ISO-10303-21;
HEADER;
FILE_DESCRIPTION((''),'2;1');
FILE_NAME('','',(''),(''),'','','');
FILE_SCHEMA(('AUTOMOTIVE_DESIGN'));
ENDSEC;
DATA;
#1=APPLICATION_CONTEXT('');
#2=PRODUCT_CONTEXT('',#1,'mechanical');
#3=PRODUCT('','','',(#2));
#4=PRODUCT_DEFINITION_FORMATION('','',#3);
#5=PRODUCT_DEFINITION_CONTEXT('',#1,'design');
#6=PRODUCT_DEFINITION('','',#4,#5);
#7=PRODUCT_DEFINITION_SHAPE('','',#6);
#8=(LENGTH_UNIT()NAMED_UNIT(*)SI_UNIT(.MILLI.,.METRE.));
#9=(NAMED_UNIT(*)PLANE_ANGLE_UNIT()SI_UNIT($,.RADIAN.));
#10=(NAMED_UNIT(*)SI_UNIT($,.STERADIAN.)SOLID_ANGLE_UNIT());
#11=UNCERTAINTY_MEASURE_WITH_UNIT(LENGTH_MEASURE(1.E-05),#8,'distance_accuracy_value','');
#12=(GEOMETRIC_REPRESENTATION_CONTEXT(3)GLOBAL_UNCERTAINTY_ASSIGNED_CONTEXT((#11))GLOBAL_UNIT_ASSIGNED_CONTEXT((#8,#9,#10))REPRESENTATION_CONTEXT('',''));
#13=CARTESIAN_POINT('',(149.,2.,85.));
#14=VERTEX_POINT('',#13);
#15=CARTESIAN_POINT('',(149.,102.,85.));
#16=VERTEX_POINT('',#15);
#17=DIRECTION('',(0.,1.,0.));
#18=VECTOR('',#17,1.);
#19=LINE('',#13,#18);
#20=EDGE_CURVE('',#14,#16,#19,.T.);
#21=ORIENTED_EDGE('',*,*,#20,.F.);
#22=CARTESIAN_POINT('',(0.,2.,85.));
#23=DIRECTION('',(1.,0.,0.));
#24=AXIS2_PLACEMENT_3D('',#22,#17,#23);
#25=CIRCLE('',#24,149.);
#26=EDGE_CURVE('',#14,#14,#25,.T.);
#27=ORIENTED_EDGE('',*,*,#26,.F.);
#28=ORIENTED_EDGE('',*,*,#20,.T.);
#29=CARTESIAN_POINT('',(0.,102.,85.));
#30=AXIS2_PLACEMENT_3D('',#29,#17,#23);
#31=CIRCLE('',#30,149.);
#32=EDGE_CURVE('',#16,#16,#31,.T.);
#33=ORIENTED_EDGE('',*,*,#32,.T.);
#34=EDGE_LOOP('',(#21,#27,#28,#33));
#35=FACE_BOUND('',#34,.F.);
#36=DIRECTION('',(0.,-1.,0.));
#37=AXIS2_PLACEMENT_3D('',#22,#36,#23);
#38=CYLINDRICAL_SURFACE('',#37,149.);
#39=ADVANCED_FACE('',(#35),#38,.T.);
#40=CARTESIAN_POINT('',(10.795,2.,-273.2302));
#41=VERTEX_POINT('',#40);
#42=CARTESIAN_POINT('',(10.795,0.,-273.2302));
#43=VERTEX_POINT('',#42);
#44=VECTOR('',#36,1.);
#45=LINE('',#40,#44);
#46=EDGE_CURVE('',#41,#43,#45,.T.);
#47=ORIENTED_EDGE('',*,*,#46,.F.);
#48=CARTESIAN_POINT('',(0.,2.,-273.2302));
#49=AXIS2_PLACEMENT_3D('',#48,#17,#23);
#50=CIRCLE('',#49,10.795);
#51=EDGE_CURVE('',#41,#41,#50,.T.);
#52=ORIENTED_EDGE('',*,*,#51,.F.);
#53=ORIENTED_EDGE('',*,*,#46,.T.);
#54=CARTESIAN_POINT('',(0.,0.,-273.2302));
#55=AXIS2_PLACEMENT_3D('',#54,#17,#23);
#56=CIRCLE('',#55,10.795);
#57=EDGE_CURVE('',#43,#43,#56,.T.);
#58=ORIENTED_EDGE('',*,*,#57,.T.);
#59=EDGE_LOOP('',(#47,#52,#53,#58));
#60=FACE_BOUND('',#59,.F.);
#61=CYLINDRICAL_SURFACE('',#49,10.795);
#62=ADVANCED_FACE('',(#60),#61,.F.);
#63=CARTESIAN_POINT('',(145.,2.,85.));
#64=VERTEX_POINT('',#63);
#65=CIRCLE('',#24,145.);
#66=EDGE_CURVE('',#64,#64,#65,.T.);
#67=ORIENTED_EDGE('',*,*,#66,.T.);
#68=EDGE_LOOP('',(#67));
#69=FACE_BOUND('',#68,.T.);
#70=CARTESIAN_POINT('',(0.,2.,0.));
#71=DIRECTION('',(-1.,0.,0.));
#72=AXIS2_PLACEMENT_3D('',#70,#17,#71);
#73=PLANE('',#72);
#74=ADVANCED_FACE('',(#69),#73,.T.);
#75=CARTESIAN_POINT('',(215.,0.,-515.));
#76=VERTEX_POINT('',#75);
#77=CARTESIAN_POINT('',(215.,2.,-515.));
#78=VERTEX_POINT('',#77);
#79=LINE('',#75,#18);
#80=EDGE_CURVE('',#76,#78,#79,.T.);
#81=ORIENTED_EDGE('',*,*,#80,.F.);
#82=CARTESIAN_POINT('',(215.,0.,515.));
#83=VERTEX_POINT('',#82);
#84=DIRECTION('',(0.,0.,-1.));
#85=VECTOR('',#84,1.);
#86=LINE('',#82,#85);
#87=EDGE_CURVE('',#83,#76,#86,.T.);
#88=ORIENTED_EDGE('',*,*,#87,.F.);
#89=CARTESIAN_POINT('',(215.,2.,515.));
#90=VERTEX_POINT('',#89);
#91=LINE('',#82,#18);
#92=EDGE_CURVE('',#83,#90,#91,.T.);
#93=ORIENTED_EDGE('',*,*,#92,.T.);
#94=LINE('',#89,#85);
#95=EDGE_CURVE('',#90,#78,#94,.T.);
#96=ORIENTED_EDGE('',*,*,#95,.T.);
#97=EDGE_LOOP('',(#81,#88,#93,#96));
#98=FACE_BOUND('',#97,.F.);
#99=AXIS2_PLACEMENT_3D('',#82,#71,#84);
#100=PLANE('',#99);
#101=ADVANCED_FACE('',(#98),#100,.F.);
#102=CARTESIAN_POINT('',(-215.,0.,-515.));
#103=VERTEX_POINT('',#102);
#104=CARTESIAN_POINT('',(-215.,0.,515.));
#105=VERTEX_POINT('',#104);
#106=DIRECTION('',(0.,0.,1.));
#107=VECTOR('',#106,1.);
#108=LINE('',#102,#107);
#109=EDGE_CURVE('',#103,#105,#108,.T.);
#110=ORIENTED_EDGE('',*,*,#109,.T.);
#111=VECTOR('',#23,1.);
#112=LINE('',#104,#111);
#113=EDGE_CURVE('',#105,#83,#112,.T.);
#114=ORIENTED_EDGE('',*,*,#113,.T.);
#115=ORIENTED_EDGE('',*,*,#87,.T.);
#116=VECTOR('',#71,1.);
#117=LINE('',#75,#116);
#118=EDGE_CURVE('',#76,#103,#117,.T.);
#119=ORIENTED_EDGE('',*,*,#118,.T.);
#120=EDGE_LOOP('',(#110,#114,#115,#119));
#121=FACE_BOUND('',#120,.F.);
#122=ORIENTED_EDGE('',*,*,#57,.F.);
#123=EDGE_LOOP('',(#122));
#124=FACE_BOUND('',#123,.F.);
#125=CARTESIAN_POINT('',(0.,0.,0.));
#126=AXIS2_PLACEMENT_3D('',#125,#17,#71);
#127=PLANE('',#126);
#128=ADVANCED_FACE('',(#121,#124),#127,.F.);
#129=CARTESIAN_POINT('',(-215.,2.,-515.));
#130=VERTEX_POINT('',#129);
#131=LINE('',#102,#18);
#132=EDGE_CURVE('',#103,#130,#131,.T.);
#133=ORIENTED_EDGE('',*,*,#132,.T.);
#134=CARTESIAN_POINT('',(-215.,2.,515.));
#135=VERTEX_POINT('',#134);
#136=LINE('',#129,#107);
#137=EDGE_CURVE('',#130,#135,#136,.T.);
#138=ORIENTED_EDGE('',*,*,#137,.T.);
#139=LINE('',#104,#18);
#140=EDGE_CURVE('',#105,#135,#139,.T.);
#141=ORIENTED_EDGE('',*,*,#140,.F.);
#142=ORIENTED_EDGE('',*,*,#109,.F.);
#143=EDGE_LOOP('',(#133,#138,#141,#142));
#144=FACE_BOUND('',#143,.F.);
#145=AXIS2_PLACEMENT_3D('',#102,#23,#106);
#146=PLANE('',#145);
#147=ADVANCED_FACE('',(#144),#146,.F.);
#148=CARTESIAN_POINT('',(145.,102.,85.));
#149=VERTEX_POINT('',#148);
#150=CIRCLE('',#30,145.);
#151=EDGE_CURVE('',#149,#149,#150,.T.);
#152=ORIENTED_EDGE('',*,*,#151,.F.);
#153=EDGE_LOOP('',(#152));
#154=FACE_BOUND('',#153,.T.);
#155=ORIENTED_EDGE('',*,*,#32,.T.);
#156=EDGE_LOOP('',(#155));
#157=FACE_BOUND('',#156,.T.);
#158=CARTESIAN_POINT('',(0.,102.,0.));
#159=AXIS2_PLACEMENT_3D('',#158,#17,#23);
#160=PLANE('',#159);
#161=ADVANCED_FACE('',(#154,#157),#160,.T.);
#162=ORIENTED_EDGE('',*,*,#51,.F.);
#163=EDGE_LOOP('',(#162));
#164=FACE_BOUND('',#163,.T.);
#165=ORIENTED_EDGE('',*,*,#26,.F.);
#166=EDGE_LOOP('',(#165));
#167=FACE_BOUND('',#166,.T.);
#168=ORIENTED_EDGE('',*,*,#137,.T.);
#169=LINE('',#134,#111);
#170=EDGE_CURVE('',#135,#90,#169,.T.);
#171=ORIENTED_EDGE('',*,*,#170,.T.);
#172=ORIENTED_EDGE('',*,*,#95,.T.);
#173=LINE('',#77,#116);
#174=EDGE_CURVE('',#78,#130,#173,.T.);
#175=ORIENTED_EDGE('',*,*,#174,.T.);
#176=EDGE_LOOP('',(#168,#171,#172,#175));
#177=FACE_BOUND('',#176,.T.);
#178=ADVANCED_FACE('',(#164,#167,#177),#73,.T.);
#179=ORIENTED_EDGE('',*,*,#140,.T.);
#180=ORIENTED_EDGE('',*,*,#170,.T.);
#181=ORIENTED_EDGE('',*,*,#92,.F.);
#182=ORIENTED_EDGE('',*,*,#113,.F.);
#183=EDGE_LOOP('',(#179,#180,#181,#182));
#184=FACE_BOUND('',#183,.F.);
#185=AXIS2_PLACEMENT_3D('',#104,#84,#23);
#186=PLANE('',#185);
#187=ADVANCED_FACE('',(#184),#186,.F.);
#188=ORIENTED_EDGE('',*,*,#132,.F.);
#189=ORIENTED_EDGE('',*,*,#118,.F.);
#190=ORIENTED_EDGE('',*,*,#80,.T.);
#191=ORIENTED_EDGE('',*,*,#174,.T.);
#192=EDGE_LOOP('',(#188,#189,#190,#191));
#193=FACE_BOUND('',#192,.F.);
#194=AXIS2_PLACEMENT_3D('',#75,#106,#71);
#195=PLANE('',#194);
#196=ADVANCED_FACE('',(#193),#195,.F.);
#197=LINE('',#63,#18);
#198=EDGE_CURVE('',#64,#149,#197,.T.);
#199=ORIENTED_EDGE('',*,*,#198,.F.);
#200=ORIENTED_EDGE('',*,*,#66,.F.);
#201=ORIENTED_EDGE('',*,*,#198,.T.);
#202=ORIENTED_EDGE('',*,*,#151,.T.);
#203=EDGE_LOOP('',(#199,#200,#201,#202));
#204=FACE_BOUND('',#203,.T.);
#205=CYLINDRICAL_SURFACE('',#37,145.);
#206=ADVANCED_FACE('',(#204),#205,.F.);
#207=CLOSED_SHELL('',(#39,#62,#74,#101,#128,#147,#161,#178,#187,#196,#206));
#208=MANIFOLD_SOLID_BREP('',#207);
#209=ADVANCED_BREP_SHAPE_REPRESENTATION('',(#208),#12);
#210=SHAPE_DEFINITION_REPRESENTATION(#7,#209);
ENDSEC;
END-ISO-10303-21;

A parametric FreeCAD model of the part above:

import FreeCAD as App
import Part
import Sketcher

doc = App.newDocument("Part")
body = doc.addObject("PartDesign::Body", "Body")

# Sketch on XZ plane
sketch1 = doc.addObject("Sketcher::SketchObject", "Sketch")
body.addObject(sketch1)
sketch1.AttachmentSupport = (doc.XZ_Plane, [""])
sketch1.MapMode = "FlatFace"
sketch1.addGeometry([
    Part.LineSegment(App.Vector(-215, -515, 0), App.Vector(-215, 515, 0)),
    Part.LineSegment(App.Vector(-215, 515, 0), App.Vector(215, 515, 0)),
    Part.LineSegment(App.Vector(215, 515, 0), App.Vector(215, -515, 0)),
    Part.LineSegment(App.Vector(215, -515, 0), App.Vector(-215, -515, 0)),
], False)
sketch1.addConstraint([
    Sketcher.Constraint("Coincident", 0, 2, 1, 1),
    Sketcher.Constraint("Coincident", 1, 2, 2, 1),
    Sketcher.Constraint("Coincident", 2, 2, 3, 1),
    Sketcher.Constraint("Coincident", 3, 2, 0, 1),
    Sketcher.Constraint("Vertical", 0),
    Sketcher.Constraint("Horizontal", 1),
    Sketcher.Constraint("Vertical", 2),
    Sketcher.Constraint("Horizontal", 3),
    Sketcher.Constraint("Symmetric", 0, 2, 2, 2, -1, 1),
    Sketcher.Constraint("DistanceX", 1, 1, 1, 2, 430.0),
    Sketcher.Constraint("DistanceY", 0, 1, 0, 2, 1030.0),
])
pad1 = doc.addObject("PartDesign::Pad", "Pad")
body.addObject(pad1)
pad1.Profile = sketch1
pad1.Length = 2
pad1.Reversed = True

# Sketch on XZ plane
sketch2 = doc.addObject("Sketcher::SketchObject", "Sketch001")
body.addObject(sketch2)
sketch2.AttachmentSupport = (doc.XZ_Plane, [""])
sketch2.MapMode = "FlatFace"
sketch2.AttachmentOffset = App.Placement(App.Vector(0, 0, -2), App.Rotation())
sketch2.addGeometry([
    Part.Circle(App.Vector(0, 85, 0), App.Vector(0, 0, 1), 149),
    Part.Circle(App.Vector(0, 85, 0), App.Vector(0, 0, 1), 145),
], False)
sketch2.addConstraint([
    Sketcher.Constraint("Coincident", 1, 3, 0, 3),
    Sketcher.Constraint("PointOnObject", 0, 3, -2),
    Sketcher.Constraint("Diameter", 1, 290.0),
    Sketcher.Constraint("Diameter", 0, 298.0),
    Sketcher.Constraint("DistanceY", -1, 1, 0, 3, 85.0),
])
pad2 = doc.addObject("PartDesign::Pad", "Pad001")
body.addObject(pad2)
pad2.Profile = sketch2
pad2.Length = 100
pad2.Reversed = True

# Sketch on XZ plane
sketch3 = doc.addObject("Sketcher::SketchObject", "Sketch002")
body.addObject(sketch3)
sketch3.AttachmentSupport = (doc.XZ_Plane, [""])
sketch3.MapMode = "FlatFace"
sketch3.AttachmentOffset = App.Placement(App.Vector(0, 0, -2), App.Rotation())
sketch3.addGeometry(Part.Circle(App.Vector(0, -273, 0), App.Vector(0, 0, 1), 11), False)
sketch3.addConstraint([
    Sketcher.Constraint("PointOnObject", 0, 3, -2),
    Sketcher.Constraint("Diameter", 0, 21.59),
    Sketcher.Constraint("DistanceY", 0, 3, -1, 1, 273.2302),
])
pocket1 = doc.addObject("PartDesign::Pocket", "Pocket")
body.addObject(pocket1)
pocket1.Profile = sketch3
pocket1.Type = "ThroughAll"
pocket1.Reversed = True

doc.recompute()
